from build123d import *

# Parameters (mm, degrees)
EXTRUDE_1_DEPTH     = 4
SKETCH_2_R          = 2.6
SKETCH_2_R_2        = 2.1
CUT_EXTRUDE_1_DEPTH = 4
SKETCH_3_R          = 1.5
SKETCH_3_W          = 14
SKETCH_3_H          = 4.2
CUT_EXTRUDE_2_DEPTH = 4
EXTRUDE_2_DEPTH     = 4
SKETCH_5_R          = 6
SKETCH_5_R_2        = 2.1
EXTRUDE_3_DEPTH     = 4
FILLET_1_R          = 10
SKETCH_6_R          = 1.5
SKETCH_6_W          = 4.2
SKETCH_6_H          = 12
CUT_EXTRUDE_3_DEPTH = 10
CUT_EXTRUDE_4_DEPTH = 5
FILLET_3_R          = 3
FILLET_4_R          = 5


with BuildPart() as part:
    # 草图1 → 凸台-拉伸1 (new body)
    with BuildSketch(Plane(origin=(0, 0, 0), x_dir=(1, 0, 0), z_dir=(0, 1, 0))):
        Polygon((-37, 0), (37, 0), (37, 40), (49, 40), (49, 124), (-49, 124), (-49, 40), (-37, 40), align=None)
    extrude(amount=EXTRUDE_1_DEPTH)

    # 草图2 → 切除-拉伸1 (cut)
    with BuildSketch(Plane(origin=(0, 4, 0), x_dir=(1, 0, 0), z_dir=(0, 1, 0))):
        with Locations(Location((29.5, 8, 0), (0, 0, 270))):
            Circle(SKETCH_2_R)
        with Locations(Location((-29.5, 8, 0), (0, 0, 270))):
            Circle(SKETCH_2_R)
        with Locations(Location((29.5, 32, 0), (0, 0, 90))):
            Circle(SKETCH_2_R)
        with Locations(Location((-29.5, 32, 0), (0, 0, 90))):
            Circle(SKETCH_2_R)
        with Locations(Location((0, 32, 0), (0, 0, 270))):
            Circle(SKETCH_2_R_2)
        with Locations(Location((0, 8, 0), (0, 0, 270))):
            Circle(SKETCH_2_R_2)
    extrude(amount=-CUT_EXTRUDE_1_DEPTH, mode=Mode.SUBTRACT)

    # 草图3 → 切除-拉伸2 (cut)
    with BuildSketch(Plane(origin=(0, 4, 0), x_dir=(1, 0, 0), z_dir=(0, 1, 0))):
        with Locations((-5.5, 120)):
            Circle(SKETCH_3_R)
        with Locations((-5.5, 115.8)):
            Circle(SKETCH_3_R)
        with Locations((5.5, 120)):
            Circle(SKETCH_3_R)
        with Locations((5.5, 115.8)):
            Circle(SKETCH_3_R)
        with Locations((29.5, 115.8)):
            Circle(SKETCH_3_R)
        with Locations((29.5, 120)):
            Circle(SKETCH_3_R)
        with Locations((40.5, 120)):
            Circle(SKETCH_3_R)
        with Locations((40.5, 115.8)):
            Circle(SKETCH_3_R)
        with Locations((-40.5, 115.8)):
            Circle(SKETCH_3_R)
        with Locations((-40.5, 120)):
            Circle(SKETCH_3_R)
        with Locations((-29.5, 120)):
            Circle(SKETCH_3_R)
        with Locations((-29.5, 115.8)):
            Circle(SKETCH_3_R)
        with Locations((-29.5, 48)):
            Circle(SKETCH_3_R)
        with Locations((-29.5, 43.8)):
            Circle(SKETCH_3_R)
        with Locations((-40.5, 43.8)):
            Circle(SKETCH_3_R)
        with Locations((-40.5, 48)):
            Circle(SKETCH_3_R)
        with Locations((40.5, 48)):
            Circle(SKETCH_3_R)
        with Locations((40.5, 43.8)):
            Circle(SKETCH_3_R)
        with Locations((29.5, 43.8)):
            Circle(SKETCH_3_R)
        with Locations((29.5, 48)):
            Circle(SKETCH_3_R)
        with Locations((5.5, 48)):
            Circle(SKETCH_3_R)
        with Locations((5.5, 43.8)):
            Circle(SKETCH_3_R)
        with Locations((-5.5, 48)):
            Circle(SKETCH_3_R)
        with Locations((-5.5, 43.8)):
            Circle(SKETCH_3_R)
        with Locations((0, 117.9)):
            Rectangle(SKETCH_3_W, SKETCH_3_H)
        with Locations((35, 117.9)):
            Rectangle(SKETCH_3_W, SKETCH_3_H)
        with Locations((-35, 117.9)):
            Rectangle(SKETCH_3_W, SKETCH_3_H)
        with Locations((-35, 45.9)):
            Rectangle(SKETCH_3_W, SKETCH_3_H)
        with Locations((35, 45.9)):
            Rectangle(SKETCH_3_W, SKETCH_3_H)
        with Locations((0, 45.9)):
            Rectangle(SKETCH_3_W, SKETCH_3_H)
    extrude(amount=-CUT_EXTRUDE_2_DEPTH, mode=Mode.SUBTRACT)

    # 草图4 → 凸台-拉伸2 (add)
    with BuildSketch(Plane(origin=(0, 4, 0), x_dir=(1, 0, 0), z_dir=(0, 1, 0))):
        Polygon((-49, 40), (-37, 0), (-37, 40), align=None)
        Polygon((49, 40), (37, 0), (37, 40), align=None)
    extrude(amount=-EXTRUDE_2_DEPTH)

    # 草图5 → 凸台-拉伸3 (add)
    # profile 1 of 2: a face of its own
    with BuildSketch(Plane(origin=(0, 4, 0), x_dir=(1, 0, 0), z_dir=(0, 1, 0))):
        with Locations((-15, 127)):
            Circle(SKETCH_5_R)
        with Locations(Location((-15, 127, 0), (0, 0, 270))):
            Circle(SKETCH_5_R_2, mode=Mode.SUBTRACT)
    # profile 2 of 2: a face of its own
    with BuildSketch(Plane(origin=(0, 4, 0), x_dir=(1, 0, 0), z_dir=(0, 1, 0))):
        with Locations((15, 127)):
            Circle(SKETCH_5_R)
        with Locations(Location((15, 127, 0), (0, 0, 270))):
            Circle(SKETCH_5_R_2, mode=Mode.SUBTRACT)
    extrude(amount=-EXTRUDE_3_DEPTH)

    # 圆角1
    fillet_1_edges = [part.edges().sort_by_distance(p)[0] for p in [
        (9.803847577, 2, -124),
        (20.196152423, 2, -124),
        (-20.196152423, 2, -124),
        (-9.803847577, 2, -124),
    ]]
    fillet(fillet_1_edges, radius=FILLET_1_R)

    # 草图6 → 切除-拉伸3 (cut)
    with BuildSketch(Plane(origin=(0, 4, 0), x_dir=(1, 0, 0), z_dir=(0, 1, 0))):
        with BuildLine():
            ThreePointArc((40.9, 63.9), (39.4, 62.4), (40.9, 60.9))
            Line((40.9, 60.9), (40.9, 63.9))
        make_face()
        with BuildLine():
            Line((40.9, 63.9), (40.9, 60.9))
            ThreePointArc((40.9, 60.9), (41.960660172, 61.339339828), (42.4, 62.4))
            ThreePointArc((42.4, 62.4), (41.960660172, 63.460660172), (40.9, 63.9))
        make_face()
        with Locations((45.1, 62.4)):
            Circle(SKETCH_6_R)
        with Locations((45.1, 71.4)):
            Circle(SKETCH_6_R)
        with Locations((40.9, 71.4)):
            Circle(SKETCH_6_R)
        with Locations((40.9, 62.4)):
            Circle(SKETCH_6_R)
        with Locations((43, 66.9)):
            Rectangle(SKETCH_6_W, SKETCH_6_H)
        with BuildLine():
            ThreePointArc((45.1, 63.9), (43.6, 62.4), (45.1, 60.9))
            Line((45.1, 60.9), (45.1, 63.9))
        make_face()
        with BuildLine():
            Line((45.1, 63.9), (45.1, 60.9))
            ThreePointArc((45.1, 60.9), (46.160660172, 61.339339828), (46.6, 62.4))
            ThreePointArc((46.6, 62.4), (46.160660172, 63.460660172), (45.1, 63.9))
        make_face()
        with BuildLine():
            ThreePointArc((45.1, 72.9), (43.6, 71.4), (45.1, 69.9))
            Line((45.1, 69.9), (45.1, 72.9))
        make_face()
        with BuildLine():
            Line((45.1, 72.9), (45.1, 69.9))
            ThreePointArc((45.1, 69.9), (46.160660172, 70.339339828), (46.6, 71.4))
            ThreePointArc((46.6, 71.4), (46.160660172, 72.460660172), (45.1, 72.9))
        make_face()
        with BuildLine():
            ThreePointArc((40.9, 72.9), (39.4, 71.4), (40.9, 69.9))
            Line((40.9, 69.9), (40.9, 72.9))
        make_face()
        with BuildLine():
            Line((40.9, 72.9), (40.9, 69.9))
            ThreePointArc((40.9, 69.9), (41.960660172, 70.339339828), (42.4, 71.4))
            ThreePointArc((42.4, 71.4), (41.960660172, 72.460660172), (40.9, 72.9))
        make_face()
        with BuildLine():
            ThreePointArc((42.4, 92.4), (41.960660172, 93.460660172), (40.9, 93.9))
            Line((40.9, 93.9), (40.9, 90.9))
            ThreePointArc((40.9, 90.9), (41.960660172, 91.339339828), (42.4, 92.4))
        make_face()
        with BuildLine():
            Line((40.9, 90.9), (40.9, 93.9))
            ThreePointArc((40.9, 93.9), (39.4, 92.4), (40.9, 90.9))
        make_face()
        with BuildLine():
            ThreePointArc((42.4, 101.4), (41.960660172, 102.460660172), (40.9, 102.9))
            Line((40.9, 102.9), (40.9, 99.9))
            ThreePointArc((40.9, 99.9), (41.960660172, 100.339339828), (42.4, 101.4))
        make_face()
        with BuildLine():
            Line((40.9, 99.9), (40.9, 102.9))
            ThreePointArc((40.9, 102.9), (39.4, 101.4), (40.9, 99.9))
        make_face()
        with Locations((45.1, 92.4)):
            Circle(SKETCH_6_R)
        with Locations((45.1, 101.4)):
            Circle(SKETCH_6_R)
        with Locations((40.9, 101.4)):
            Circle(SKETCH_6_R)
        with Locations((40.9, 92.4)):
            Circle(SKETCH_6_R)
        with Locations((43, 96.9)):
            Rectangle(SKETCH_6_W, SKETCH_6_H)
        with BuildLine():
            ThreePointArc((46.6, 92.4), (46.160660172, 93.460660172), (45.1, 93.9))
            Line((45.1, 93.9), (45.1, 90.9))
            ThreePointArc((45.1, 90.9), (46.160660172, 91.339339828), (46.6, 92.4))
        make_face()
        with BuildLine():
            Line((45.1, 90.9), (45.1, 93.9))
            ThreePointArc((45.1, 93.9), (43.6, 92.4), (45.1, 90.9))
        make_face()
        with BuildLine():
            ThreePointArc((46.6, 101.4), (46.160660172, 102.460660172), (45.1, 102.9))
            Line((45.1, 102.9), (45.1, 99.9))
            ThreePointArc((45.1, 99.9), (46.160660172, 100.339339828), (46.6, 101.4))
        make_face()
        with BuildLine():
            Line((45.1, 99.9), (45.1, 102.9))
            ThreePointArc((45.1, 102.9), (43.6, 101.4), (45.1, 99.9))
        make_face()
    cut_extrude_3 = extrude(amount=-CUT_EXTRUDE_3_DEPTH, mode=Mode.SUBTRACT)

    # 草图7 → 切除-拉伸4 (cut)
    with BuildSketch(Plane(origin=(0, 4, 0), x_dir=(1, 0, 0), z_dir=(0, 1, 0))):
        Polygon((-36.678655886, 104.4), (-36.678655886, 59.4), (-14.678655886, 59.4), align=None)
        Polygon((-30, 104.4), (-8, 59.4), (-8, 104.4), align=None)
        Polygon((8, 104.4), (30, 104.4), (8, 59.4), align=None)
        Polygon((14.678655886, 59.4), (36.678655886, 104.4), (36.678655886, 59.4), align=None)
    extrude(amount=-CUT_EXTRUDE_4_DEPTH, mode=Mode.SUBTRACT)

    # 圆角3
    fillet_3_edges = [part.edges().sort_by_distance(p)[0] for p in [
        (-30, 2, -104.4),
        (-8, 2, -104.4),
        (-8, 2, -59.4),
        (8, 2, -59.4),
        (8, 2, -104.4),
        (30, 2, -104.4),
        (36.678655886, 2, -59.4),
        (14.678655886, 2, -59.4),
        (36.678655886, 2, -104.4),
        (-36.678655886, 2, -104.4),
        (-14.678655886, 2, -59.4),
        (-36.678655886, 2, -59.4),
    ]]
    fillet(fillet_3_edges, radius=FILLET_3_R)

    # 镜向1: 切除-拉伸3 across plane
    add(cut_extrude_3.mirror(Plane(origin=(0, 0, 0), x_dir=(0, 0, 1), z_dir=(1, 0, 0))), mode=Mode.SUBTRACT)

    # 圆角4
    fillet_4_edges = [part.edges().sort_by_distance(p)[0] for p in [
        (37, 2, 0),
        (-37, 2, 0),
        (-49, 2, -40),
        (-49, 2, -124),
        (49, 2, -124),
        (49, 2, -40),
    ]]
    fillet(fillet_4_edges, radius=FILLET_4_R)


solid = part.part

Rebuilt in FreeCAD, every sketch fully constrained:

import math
import FreeCAD as App
import Part
import Sketcher


def edges_at(feature, points):
    """Names of the edges that pass closest to the given points."""
    edges = feature.Shape.Edges
    near = lambda p: min(range(len(edges)), key=lambda i: edges[i].distToShape(Part.Vertex(*p))[0])
    return sorted({f"Edge{near(p) + 1}" for p in points})

doc = App.newDocument("Part")
params = doc.addObject("Spreadsheet::Sheet", "Params")
for row, (alias, value) in enumerate([
    ("sketch1_width", "74 mm"),
    ("sketch1_width2", "12 mm"),
    ("sketch1_height", "40 mm"),
    ("sketch1_height2", "84 mm"),
    ("pad1_length", "4 mm"),
    ("sketch2_diameter", "5.2 mm"),
    ("sketch2_diameter2", "4.2 mm"),
    ("pocket1_length", "4 mm"),
    ("sketch3_radius", "1.5 mm"),
    ("sketch3_width", "8 mm"),
    ("sketch3_height", "4.2 mm"),
    ("pocket2_length", "4 mm"),
    ("sketch4_width", "12 mm"),
    ("sketch4_height", "40 mm"),
    ("pad2_length", "4 mm"),
    ("sketch5_diameter", "12 mm"),
    ("sketch5_diameter2", "4.2 mm"),
    ("pad3_length", "4 mm"),
    ("fillet_radius", "10 mm"),
    ("sketch6_radius", "1.5 mm"),
    ("sketch6_height", "6 mm"),
    ("sketch6_width", "4.2 mm"),
    ("pocket3_length", "10 mm"),
    ("sketch7_width", "22 mm"),
    ("sketch7_height", "45 mm"),
    ("pocket4_length", "5 mm"),
    ("fillet2_radius", "3 mm"),
    ("fillet3_radius", "5 mm"),
], start=1):
    params.set(f"A{row}", alias)
    params.set(f"B{row}", "=" + value)
    params.setAlias(f"B{row}", alias)

body = doc.addObject("PartDesign::Body", "Body")

# Sketch on XZ plane
sketch1 = doc.addObject("Sketcher::SketchObject", "Sketch")
body.addObject(sketch1)
sketch1.AttachmentSupport = (doc.XZ_Plane, [""])
sketch1.MapMode = "FlatFace"
sketch1.addGeometry([
    Part.LineSegment(App.Vector(-37, 0, 0), App.Vector(37, 0, 0)),  # 0
    Part.LineSegment(App.Vector(37, 0, 0), App.Vector(37, -40, 0)),  # 1
    Part.LineSegment(App.Vector(37, -40, 0), App.Vector(49, -40, 0)),  # 2
    Part.LineSegment(App.Vector(49, -40, 0), App.Vector(49, -124, 0)),  # 3
    Part.LineSegment(App.Vector(49, -124, 0), App.Vector(-49, -124, 0)),  # 4
    Part.LineSegment(App.Vector(-49, -124, 0), App.Vector(-49, -40, 0)),  # 5
    Part.LineSegment(App.Vector(-49, -40, 0), App.Vector(-37, -40, 0)),  # 6
    Part.LineSegment(App.Vector(-37, -40, 0), App.Vector(-37, 0, 0)),  # 7
], False)
sketch1.addConstraint([
    Sketcher.Constraint("Coincident", 0, 2, 1, 1),
    Sketcher.Constraint("Coincident", 1, 2, 2, 1),
    Sketcher.Constraint("Coincident", 2, 2, 3, 1),
    Sketcher.Constraint("Coincident", 3, 2, 4, 1),
    Sketcher.Constraint("Coincident", 4, 2, 5, 1),
    Sketcher.Constraint("Coincident", 5, 2, 6, 1),
    Sketcher.Constraint("Coincident", 6, 2, 7, 1),
    Sketcher.Constraint("Coincident", 7, 2, 0, 1),
    Sketcher.Constraint("Horizontal", 0),
    Sketcher.Constraint("Vertical", 1),
    Sketcher.Constraint("Horizontal", 2),
    Sketcher.Constraint("Vertical", 3),
    Sketcher.Constraint("Horizontal", 4),
    Sketcher.Constraint("Vertical", 5),
    Sketcher.Constraint("Horizontal", 6),
    Sketcher.Constraint("Vertical", 7),
    Sketcher.Constraint("Symmetric", 0, 2, 7, 2, -1, 1),
    Sketcher.Constraint("Symmetric", 2, 2, 5, 2, -2),
    Sketcher.Constraint("DistanceX", 0, 1, 0, 2, 74.0),
    Sketcher.Constraint("DistanceX", 2, 1, 2, 2, 12.0),
    Sketcher.Constraint("DistanceY", 1, 2, 1, 1, 40.0),
    Sketcher.Constraint("DistanceY", 3, 2, 3, 1, 84.0),
])
sketch1.setExpression("Constraints[18]", "Params.sketch1_width")
sketch1.setExpression("Constraints[19]", "Params.sketch1_width2")
sketch1.setExpression("Constraints[20]", "Params.sketch1_height")
sketch1.setExpression("Constraints[21]", "Params.sketch1_height2")
pad1 = doc.addObject("PartDesign::Pad", "Pad")
body.addObject(pad1)
pad1.Profile = sketch1
pad1.setExpression("Length", "Params.pad1_length")
pad1.Reversed = True

# Sketch on XZ plane
sketch2 = doc.addObject("Sketcher::SketchObject", "Sketch001")
body.addObject(sketch2)
sketch2.AttachmentSupport = (doc.XZ_Plane, [""])
sketch2.MapMode = "FlatFace"
sketch2.AttachmentOffset = App.Placement(App.Vector(0, 0, -4), App.Rotation())
sketch2.addGeometry([
    Part.Circle(App.Vector(29.5, -8, 0), App.Vector(0, 0, 1), 2.6),  # 0
    Part.Circle(App.Vector(-29.5, -8, 0), App.Vector(0, 0, 1), 2.6),  # 1
    Part.Circle(App.Vector(29.5, -32, 0), App.Vector(0, 0, 1), 2.6),  # 2
    Part.Circle(App.Vector(-29.5, -32, 0), App.Vector(0, 0, 1), 2.6),  # 3
    Part.Circle(App.Vector(0, -32, 0), App.Vector(0, 0, 1), 2.1),  # 4
    Part.Circle(App.Vector(0, -8, 0), App.Vector(0, 0, 1), 2.1),  # 5
], False)
sketch2.addConstraint([
    Sketcher.Constraint("Equal", 0, 1),
    Sketcher.Constraint("Equal", 1, 2),
    Sketcher.Constraint("Equal", 2, 3),
    Sketcher.Constraint("Equal", 4, 5),
    Sketcher.Constraint("Symmetric", 0, 3, 1, 3, -2),
    Sketcher.Constraint("Symmetric", 2, 3, 3, 3, -2),
    Sketcher.Constraint("PointOnObject", 4, 3, -2),
    Sketcher.Constraint("PointOnObject", 5, 3, -2),
    Sketcher.Constraint("Horizontal", 3, 3, 4, 3),
    Sketcher.Constraint("Horizontal", 1, 3, 5, 3),
    Sketcher.Constraint("Vertical", 0, 3, 2, 3),
    Sketcher.Constraint("Diameter", 0, 5.2),
    Sketcher.Constraint("Diameter", 4, 4.2),
    Sketcher.Constraint("DistanceY", 0, 3, -1, 1, 8.0),
    Sketcher.Constraint("DistanceY", 2, 3, -1, 1, 32.0),
    Sketcher.Constraint("DistanceX", 1, 3, 0, 3, 59.0),
])
sketch2.setExpression("Constraints[11]", "Params.sketch2_diameter")
sketch2.setExpression("Constraints[12]", "Params.sketch2_diameter2")
pocket1 = doc.addObject("PartDesign::Pocket", "Pocket")
body.addObject(pocket1)
pocket1.Profile = sketch2
pocket1.setExpression("Length", "Params.pocket1_length")
pocket1.Reversed = True

# Sketch on XZ plane
sketch3 = doc.addObject("Sketcher::SketchObject", "Sketch002")
body.addObject(sketch3)
sketch3.AttachmentSupport = (doc.XZ_Plane, [""])
sketch3.MapMode = "FlatFace"
sketch3.AttachmentOffset = App.Placement(App.Vector(0, 0, -4), App.Rotation())
sketch3.addGeometry([
    Part.ArcOfCircle(Part.Circle(App.Vector(-5.5, -120, 0), App.Vector(0, 0, 1), 1.5), math.radians(180), math.radians(360)),  # 0
    Part.LineSegment(App.Vector(-7, -120, 0), App.Vector(-7, -115.8, 0)),  # 1
    Part.ArcOfCircle(Part.Circle(App.Vector(-5.5, -115.8, 0), App.Vector(0, 0, 1), 1.5), math.radians(0), math.radians(180)),  # 2
    Part.LineSegment(App.Vector(-4, -115.8, 0), App.Vector(4, -115.8, 0)),  # 3
    Part.ArcOfCircle(Part.Circle(App.Vector(5.5, -115.8, 0), App.Vector(0, 0, 1), 1.5), math.radians(0), math.radians(180)),  # 4
    Part.LineSegment(App.Vector(7, -115.8, 0), App.Vector(7, -120, 0)),  # 5
    Part.ArcOfCircle(Part.Circle(App.Vector(5.5, -120, 0), App.Vector(0, 0, 1), 1.5), math.radians(180), math.radians(360)),  # 6
    Part.LineSegment(App.Vector(4, -120, 0), App.Vector(-4, -120, 0)),  # 7
    Part.ArcOfCircle(Part.Circle(App.Vector(29.5, -115.8, 0), App.Vector(0, 0, 1), 1.5), math.radians(0), math.radians(180)),  # 8
    Part.LineSegment(App.Vector(31, -115.8, 0), App.Vector(39, -115.8, 0)),  # 9
    Part.ArcOfCircle(Part.Circle(App.Vector(40.5, -115.8, 0), App.Vector(0, 0, 1), 1.5), math.radians(0), math.radians(180)),  # 10
    Part.LineSegment(App.Vector(42, -115.8, 0), App.Vector(42, -120, 0)),  # 11
    Part.ArcOfCircle(Part.Circle(App.Vector(40.5, -120, 0), App.Vector(0, 0, 1), 1.5), math.radians(180), math.radians(360)),  # 12
    Part.LineSegment(App.Vector(39, -120, 0), App.Vector(31, -120, 0)),  # 13
    Part.ArcOfCircle(Part.Circle(App.Vector(29.5, -120, 0), App.Vector(0, 0, 1), 1.5), math.radians(180), math.radians(360)),  # 14
    Part.LineSegment(App.Vector(28, -120, 0), App.Vector(28, -115.8, 0)),  # 15
    Part.ArcOfCircle(Part.Circle(App.Vector(-40.5, -115.8, 0), App.Vector(0, 0, 1), 1.5), math.radians(0), math.radians(180)),  # 16
    Part.LineSegment(App.Vector(-39, -115.8, 0), App.Vector(-31, -115.8, 0)),  # 17
    Part.ArcOfCircle(Part.Circle(App.Vector(-29.5, -115.8, 0), App.Vector(0, 0, 1), 1.5), math.radians(0), math.radians(180)),  # 18
    Part.LineSegment(App.Vector(-28, -115.8, 0), App.Vector(-28, -120, 0)),  # 19
    Part.ArcOfCircle(Part.Circle(App.Vector(-29.5, -120, 0), App.Vector(0, 0, 1), 1.5), math.radians(180), math.radians(360)),  # 20
    Part.LineSegment(App.Vector(-31, -120, 0), App.Vector(-39, -120, 0)),  # 21
    Part.ArcOfCircle(Part.Circle(App.Vector(-40.5, -120, 0), App.Vector(0, 0, 1), 1.5), math.radians(180), math.radians(360)),  # 22
    Part.LineSegment(App.Vector(-42, -120, 0), App.Vector(-42, -115.8, 0)),  # 23
    Part.ArcOfCircle(Part.Circle(App.Vector(-29.5, -48, 0), App.Vector(0, 0, 1), 1.5), math.radians(180), math.radians(360)),  # 24
    Part.LineSegment(App.Vector(-31, -48, 0), App.Vector(-39, -48, 0)),  # 25
    Part.ArcOfCircle(Part.Circle(App.Vector(-40.5, -48, 0), App.Vector(0, 0, 1), 1.5), math.radians(180), math.radians(360)),  # 26
    Part.LineSegment(App.Vector(-42, -48, 0), App.Vector(-42, -43.8, 0)),  # 27
    Part.ArcOfCircle(Part.Circle(App.Vector(-40.5, -43.8, 0), App.Vector(0, 0, 1), 1.5), math.radians(0), math.radians(180)),  # 28
    Part.LineSegment(App.Vector(-39, -43.8, 0), App.Vector(-31, -43.8, 0)),  # 29
    Part.ArcOfCircle(Part.Circle(App.Vector(-29.5, -43.8, 0), App.Vector(0, 0, 1), 1.5), math.radians(0), math.radians(180)),  # 30
    Part.LineSegment(App.Vector(-28, -43.8, 0), App.Vector(-28, -48, 0)),  # 31
    Part.ArcOfCircle(Part.Circle(App.Vector(40.5, -48, 0), App.Vector(0, 0, 1), 1.5), math.radians(180), math.radians(360)),  # 32
    Part.LineSegment(App.Vector(39, -48, 0), App.Vector(31, -48, 0)),  # 33
    Part.ArcOfCircle(Part.Circle(App.Vector(29.5, -48, 0), App.Vector(0, 0, 1), 1.5), math.radians(180), math.radians(360)),  # 34
    Part.LineSegment(App.Vector(28, -48, 0), App.Vector(28, -43.8, 0)),  # 35
    Part.ArcOfCircle(Part.Circle(App.Vector(29.5, -43.8, 0), App.Vector(0, 0, 1), 1.5), math.radians(0), math.radians(180)),  # 36
    Part.LineSegment(App.Vector(31, -43.8, 0), App.Vector(39, -43.8, 0)),  # 37
    Part.ArcOfCircle(Part.Circle(App.Vector(40.5, -43.8, 0), App.Vector(0, 0, 1), 1.5), math.radians(0), math.radians(180)),  # 38
    Part.LineSegment(App.Vector(42, -43.8, 0), App.Vector(42, -48, 0)),  # 39
    Part.ArcOfCircle(Part.Circle(App.Vector(5.5, -48, 0), App.Vector(0, 0, 1), 1.5), math.radians(180), math.radians(360)),  # 40
    Part.LineSegment(App.Vector(4, -48, 0), App.Vector(-4, -48, 0)),  # 41
    Part.ArcOfCircle(Part.Circle(App.Vector(-5.5, -48, 0), App.Vector(0, 0, 1), 1.5), math.radians(180), math.radians(360)),  # 42
    Part.LineSegment(App.Vector(-7, -48, 0), App.Vector(-7, -43.8, 0)),  # 43
    Part.ArcOfCircle(Part.Circle(App.Vector(-5.5, -43.8, 0), App.Vector(0, 0, 1), 1.5), math.radians(0), math.radians(180)),  # 44
    Part.LineSegment(App.Vector(-4, -43.8, 0), App.Vector(4, -43.8, 0)),  # 45
    Part.ArcOfCircle(Part.Circle(App.Vector(5.5, -43.8, 0), App.Vector(0, 0, 1), 1.5), math.radians(0), math.radians(180)),  # 46
    Part.LineSegment(App.Vector(7, -43.8, 0), App.Vector(7, -48, 0)),  # 47
], False)
sketch3.addConstraint([
    Sketcher.Constraint("Tangent", 0, 1, 1, 1),
    Sketcher.Constraint("Tangent", 1, 2, 2, 2),
    Sketcher.Constraint("Coincident", 2, 1, 3, 1),
    Sketcher.Constraint("Coincident", 3, 2, 4, 2),
    Sketcher.Constraint("Tangent", 4, 1, 5, 1),
    Sketcher.Constraint("Tangent", 5, 2, 6, 2),
    Sketcher.Constraint("Coincident", 6, 1, 7, 1),
    Sketcher.Constraint("Coincident", 7, 2, 0, 2),
    Sketcher.Constraint("Coincident", 8, 1, 9, 1),
    Sketcher.Constraint("Coincident", 9, 2, 10, 2),
    Sketcher.Constraint("Tangent", 10, 1, 11, 1),
    Sketcher.Constraint("Tangent", 11, 2, 12, 2),
    Sketcher.Constraint("Coincident", 12, 1, 13, 1),
    Sketcher.Constraint("Coincident", 13, 2, 14, 2),
    Sketcher.Constraint("Tangent", 14, 1, 15, 1),
    Sketcher.Constraint("Tangent", 15, 2, 8, 2),
    Sketcher.Constraint("Coincident", 16, 1, 17, 1),
    Sketcher.Constraint("Coincident", 17, 2, 18, 2),
    Sketcher.Constraint("Tangent", 18, 1, 19, 1),
    Sketcher.Constraint("Tangent", 19, 2, 20, 2),
    Sketcher.Constraint("Coincident", 20, 1, 21, 1),
    Sketcher.Constraint("Coincident", 21, 2, 22, 2),
    Sketcher.Constraint("Tangent", 22, 1, 23, 1),
    Sketcher.Constraint("Tangent", 23, 2, 16, 2),
    Sketcher.Constraint("Coincident", 24, 1, 25, 1),
    Sketcher.Constraint("Coincident", 25, 2, 26, 2),
    Sketcher.Constraint("Tangent", 26, 1, 27, 1),
    Sketcher.Constraint("Tangent", 27, 2, 28, 2),
    Sketcher.Constraint("Coincident", 28, 1, 29, 1),
    Sketcher.Constraint("Coincident", 29, 2, 30, 2),
    Sketcher.Constraint("Tangent", 30, 1, 31, 1),
    Sketcher.Constraint("Tangent", 31, 2, 24, 2),
    Sketcher.Constraint("Coincident", 32, 1, 33, 1),
    Sketcher.Constraint("Coincident", 33, 2, 34, 2),
    Sketcher.Constraint("Tangent", 34, 1, 35, 1),
    Sketcher.Constraint("Tangent", 35, 2, 36, 2),
    Sketcher.Constraint("Coincident", 36, 1, 37, 1),
    Sketcher.Constraint("Coincident", 37, 2, 38, 2),
    Sketcher.Constraint("Tangent", 38, 1, 39, 1),
    Sketcher.Constraint("Tangent", 39, 2, 32, 2),
    Sketcher.Constraint("Coincident", 40, 1, 41, 1),
    Sketcher.Constraint("Coincident", 41, 2, 42, 2),
    Sketcher.Constraint("Tangent", 42, 1, 43, 1),
    Sketcher.Constraint("Tangent", 43, 2, 44, 2),
    Sketcher.Constraint("Coincident", 44, 1, 45, 1),
    Sketcher.Constraint("Coincident", 45, 2, 46, 2),
    Sketcher.Constraint("Tangent", 46, 1, 47, 1),
    Sketcher.Constraint("Tangent", 47, 2, 40, 2),
    Sketcher.Constraint("Vertical", 1),
    Sketcher.Constraint("Horizontal", 3),
    Sketcher.Constraint("Vertical", 5),
    Sketcher.Constraint("Horizontal", 7),
    Sketcher.Constraint("Horizontal", 9),
    Sketcher.Constraint("Vertical", 11),
    Sketcher.Constraint("Horizontal", 13),
    Sketcher.Constraint("Vertical", 15),
    Sketcher.Constraint("Horizontal", 17),
    Sketcher.Constraint("Vertical", 19),
    Sketcher.Constraint("Horizontal", 21),
    Sketcher.Constraint("Vertical", 23),
    Sketcher.Constraint("Horizontal", 25),
    Sketcher.Constraint("Vertical", 27),
    Sketcher.Constraint("Horizontal", 29),
    Sketcher.Constraint("Vertical", 31),
    Sketcher.Constraint("Horizontal", 33),
    Sketcher.Constraint("Vertical", 35),
    Sketcher.Constraint("Horizontal", 37),
    Sketcher.Constraint("Vertical", 39),
    Sketcher.Constraint("Horizontal", 41),
    Sketcher.Constraint("Vertical", 43),
    Sketcher.Constraint("Horizontal", 45),
    Sketcher.Constraint("Vertical", 47),
    Sketcher.Constraint("Equal", 0, 2),
    Sketcher.Constraint("Equal", 2, 4),
    Sketcher.Constraint("Equal", 4, 6),
    Sketcher.Constraint("Equal", 6, 8),
    Sketcher.Constraint("Equal", 8, 10),
    Sketcher.Constraint("Equal", 10, 12),
    Sketcher.Constraint("Equal", 12, 14),
    Sketcher.Constraint("Equal", 14, 16),
    Sketcher.Constraint("Equal", 16, 18),
    Sketcher.Constraint("Equal", 18, 20),
    Sketcher.Constraint("Equal", 20, 22),
    Sketcher.Constraint("Equal", 22, 24),
    Sketcher.Constraint("Equal", 24, 26),
    Sketcher.Constraint("Equal", 26, 28),
    Sketcher.Constraint("Equal", 28, 30),
    Sketcher.Constraint("Equal", 30, 32),
    Sketcher.Constraint("Equal", 32, 34),
    Sketcher.Constraint("Equal", 34, 36),
    Sketcher.Constraint("Equal", 36, 38),
    Sketcher.Constraint("Equal", 38, 40),
    Sketcher.Constraint("Equal", 40, 42),
    Sketcher.Constraint("Equal", 42, 44),
    Sketcher.Constraint("Equal", 44, 46),
    Sketcher.Constraint("Symmetric", 2, 3, 4, 3, -2),
    Sketcher.Constraint("Symmetric", 10, 3, 16, 3, -2),
    Sketcher.Constraint("Symmetric", 8, 3, 18, 3, -2),
    Sketcher.Constraint("Symmetric", 26, 3, 32, 3, -2),
    Sketcher.Constraint("Symmetric", 24, 3, 34, 3, -2),
    Sketcher.Constraint("Symmetric", 40, 3, 42, 3, -2),
    Sketcher.Constraint("Horizontal", 0, 3, 6, 3),
    Sketcher.Constraint("Horizontal", 4, 3, 8, 3),
    Sketcher.Constraint("Horizontal", 8, 3, 10, 3),
    Sketcher.Constraint("Horizontal", 6, 3, 12, 3),
    Sketcher.Constraint("Horizontal", 12, 3, 14, 3),
    Sketcher.Constraint("Horizontal", 14, 3, 20, 3),
    Sketcher.Constraint("Horizontal", 20, 3, 22, 3),
    Sketcher.Constraint("Horizontal", 24, 3, 26, 3),
    Sketcher.Constraint("Horizontal", 28, 3, 30, 3),
    Sketcher.Constraint("Horizontal", 30, 3, 36, 3),
    Sketcher.Constraint("Horizontal", 36, 3, 38, 3),
    Sketcher.Constraint("Horizontal", 34, 3, 40, 3),
    Sketcher.Constraint("Horizontal", 38, 3, 44, 3),
    Sketcher.Constraint("Horizontal", 44, 3, 46, 3),
    Sketcher.Constraint("Horizontal", 1, 2, 2, 1),
    Sketcher.Constraint("Horizontal", 5, 2, 6, 1),
    Sketcher.Constraint("Horizontal", 4, 1, 8, 1),
    Sketcher.Constraint("Horizontal", 11, 2, 12, 1),
    Sketcher.Constraint("Horizontal", 15, 2, 16, 1),
    Sketcher.Constraint("Horizontal", 19, 2, 20, 1),
    Sketcher.Constraint("Horizontal", 42, 3, 24, 1),
    Sketcher.Constraint("Horizontal", 27, 2, 28, 1),
    Sketcher.Constraint("Horizontal", 31, 2, 32, 1),
    Sketcher.Constraint("Horizontal", 35, 2, 36, 1),
    Sketcher.Constraint("Horizontal", 39, 2, 40, 1),
    Sketcher.Constraint("Horizontal", 43, 2, 44, 1),
    Sketcher.Constraint("Vertical", 20, 3, 24, 3),
    Sketcher.Constraint("Vertical", 22, 3, 26, 3),
    Sketcher.Constraint("Vertical", 6, 3, 40, 3),
    Sketcher.Constraint("Equal", 7, 9),
    Sketcher.Constraint("Equal", 23, 27),
    Sketcher.Constraint("Radius", 0, 1.5),
    Sketcher.Constraint("DistanceX", 3, 1, 3, 2, 8.0),
    Sketcher.Constraint("DistanceY", 1, 1, 1, 2, 4.2),
    Sketcher.Constraint("DistanceY", 0, 3, -1, 1, 120.0),
    Sketcher.Constraint("DistanceY", 24, 3, -1, 1, 48.0),
    Sketcher.Constraint("DistanceX", -1, 1, 8, 1, 31.0),
])
sketch3.setExpression("Constraints[132]", "Params.sketch3_radius")
sketch3.setExpression("Constraints[133]", "Params.sketch3_width")
sketch3.setExpression("Constraints[134]", "Params.sketch3_height")
pocket2 = doc.addObject("PartDesign::Pocket", "Pocket001")
body.addObject(pocket2)
pocket2.Profile = sketch3
pocket2.setExpression("Length", "Params.pocket2_length")
pocket2.Reversed = True

# Sketch on XZ plane
sketch4 = doc.addObject("Sketcher::SketchObject", "Sketch003")
body.addObject(sketch4)
sketch4.AttachmentSupport = (doc.XZ_Plane, [""])
sketch4.MapMode = "FlatFace"
sketch4.AttachmentOffset = App.Placement(App.Vector(0, 0, -4), App.Rotation())
sketch4.addGeometry([
    Part.LineSegment(App.Vector(-49, -40, 0), App.Vector(-37, 0, 0)),  # 0
    Part.LineSegment(App.Vector(-37, 0, 0), App.Vector(-37, -40, 0)),  # 1
    Part.LineSegment(App.Vector(-37, -40, 0), App.Vector(-49, -40, 0)),  # 2
    Part.LineSegment(App.Vector(37, 0, 0), App.Vector(49, -40, 0)),  # 3
    Part.LineSegment(App.Vector(49, -40, 0), App.Vector(37, -40, 0)),  # 4
    Part.LineSegment(App.Vector(37, -40, 0), App.Vector(37, 0, 0)),  # 5
], False)
sketch4.addConstraint([
    Sketcher.Constraint("Coincident", 0, 2, 1, 1),
    Sketcher.Constraint("Coincident", 1, 2, 2, 1),
    Sketcher.Constraint("Coincident", 2, 2, 0, 1),
    Sketcher.Constraint("Coincident", 3, 2, 4, 1),
    Sketcher.Constraint("Coincident", 4, 2, 5, 1),
    Sketcher.Constraint("Coincident", 5, 2, 3, 1),
    Sketcher.Constraint("Vertical", 1),
    Sketcher.Constraint("Horizontal", 2),
    Sketcher.Constraint("Horizontal", 4),
    Sketcher.Constraint("Vertical", 5),
    Sketcher.Constraint("Symmetric", 0, 2, 5, 2, -1, 1),
    Sketcher.Constraint("Symmetric", 2, 2, 3, 2, -2),
    Sketcher.Constraint("PointOnObject", 0, 2, -1),
    Sketcher.Constraint("DistanceX", 2, 2, 2, 1, 12.0),
    Sketcher.Constraint("DistanceY", 1, 2, 1, 1, 40.0),
    Sketcher.Constraint("DistanceX", 0, 2, -1, 1, 37.0),
])
sketch4.setExpression("Constraints[13]", "Params.sketch4_width")
sketch4.setExpression("Constraints[14]", "Params.sketch4_height")
pad2 = doc.addObject("PartDesign::Pad", "Pad001")
body.addObject(pad2)
pad2.Profile = sketch4
pad2.setExpression("Length", "Params.pad2_length")

# Sketch on XZ plane
sketch5 = doc.addObject("Sketcher::SketchObject", "Sketch004")
body.addObject(sketch5)
sketch5.AttachmentSupport = (doc.XZ_Plane, [""])
sketch5.MapMode = "FlatFace"
sketch5.AttachmentOffset = App.Placement(App.Vector(0, 0, -4), App.Rotation())
sketch5.addGeometry([
    Part.Circle(App.Vector(-15, -127, 0), App.Vector(0, 0, 1), 6),
    Part.Circle(App.Vector(-15, -127, 0), App.Vector(0, 0, 1), 2.1),
    Part.Circle(App.Vector(15, -127, 0), App.Vector(0, 0, 1), 6),
    Part.Circle(App.Vector(15, -127, 0), App.Vector(0, 0, 1), 2.1),
], False)
sketch5.addConstraint([
    Sketcher.Constraint("Coincident", 1, 3, 0, 3),
    Sketcher.Constraint("Coincident", 3, 3, 2, 3),
    Sketcher.Constraint("Equal", 0, 2),
    Sketcher.Constraint("Equal", 1, 3),
    Sketcher.Constraint("Symmetric", 0, 3, 2, 3, -2),
    Sketcher.Constraint("Diameter", 0, 12.0),
    Sketcher.Constraint("Diameter", 1, 4.2),
    Sketcher.Constraint("DistanceX", 0, 3, -1, 1, 15.0),
    Sketcher.Constraint("DistanceY", 0, 3, -1, 1, 127.0),
])
sketch5.setExpression("Constraints[5]", "Params.sketch5_diameter")
sketch5.setExpression("Constraints[6]", "Params.sketch5_diameter2")
pad3 = doc.addObject("PartDesign::Pad", "Pad002")
body.addObject(pad3)
pad3.Profile = sketch5
pad3.setExpression("Length", "Params.pad3_length")
doc.recompute()

fillet = doc.addObject("PartDesign::Fillet", "Fillet")
body.addObject(fillet)
fillet.Base = (pad3, edges_at(pad3, [
    (9.804, 2, -124),
    (20.196, 2, -124),
    (-20.196, 2, -124),
    (-9.804, 2, -124),
]))
fillet.setExpression("Radius", "Params.fillet_radius")

# Sketch on XZ plane
sketch6 = doc.addObject("Sketcher::SketchObject", "Sketch005")
body.addObject(sketch6)
sketch6.AttachmentSupport = (doc.XZ_Plane, [""])
sketch6.MapMode = "FlatFace"
sketch6.AttachmentOffset = App.Placement(App.Vector(0, 0, -4), App.Rotation())
sketch6.addGeometry([
    Part.LineSegment(App.Vector(40.9, -69.9, 0), App.Vector(40.9, -63.9, 0)),  # 0
    Part.ArcOfCircle(Part.Circle(App.Vector(40.9, -62.4, 0), App.Vector(0, 0, 1), 1.5), math.radians(90), math.radians(270)),  # 1
    Part.LineSegment(App.Vector(40.9, -60.9, 0), App.Vector(45.1, -60.9, 0)),  # 2
    Part.ArcOfCircle(Part.Circle(App.Vector(45.1, -62.4, 0), App.Vector(0, 0, 1), 1.5), math.radians(-90), math.radians(90)),  # 3
    Part.LineSegment(App.Vector(45.1, -63.9, 0), App.Vector(45.1, -69.9, 0)),  # 4
    Part.ArcOfCircle(Part.Circle(App.Vector(45.1, -71.4, 0), App.Vector(0, 0, 1), 1.5), math.radians(-90), math.radians(90)),  # 5
    Part.LineSegment(App.Vector(45.1, -72.9, 0), App.Vector(40.9, -72.9, 0)),  # 6
    Part.ArcOfCircle(Part.Circle(App.Vector(40.9, -71.4, 0), App.Vector(0, 0, 1), 1.5), math.radians(90), math.radians(270)),  # 7
    Part.LineSegment(App.Vector(40.9, -99.9, 0), App.Vector(40.9, -93.9, 0)),  # 8
    Part.ArcOfCircle(Part.Circle(App.Vector(40.9, -92.4, 0), App.Vector(0, 0, 1), 1.5), math.radians(90), math.radians(270)),  # 9
    Part.LineSegment(App.Vector(40.9, -90.9, 0), App.Vector(45.1, -90.9, 0)),  # 10
    Part.ArcOfCircle(Part.Circle(App.Vector(45.1, -92.4, 0), App.Vector(0, 0, 1), 1.5), math.radians(-90), math.radians(90)),  # 11
    Part.LineSegment(App.Vector(45.1, -93.9, 0), App.Vector(45.1, -99.9, 0)),  # 12
    Part.ArcOfCircle(Part.Circle(App.Vector(45.1, -101.4, 0), App.Vector(0, 0, 1), 1.5), math.radians(-90), math.radians(90)),  # 13
    Part.LineSegment(App.Vector(45.1, -102.9, 0), App.Vector(40.9, -102.9, 0)),  # 14
    Part.ArcOfCircle(Part.Circle(App.Vector(40.9, -101.4, 0), App.Vector(0, 0, 1), 1.5), math.radians(90), math.radians(270)),  # 15
], False)
sketch6.addConstraint([
    Sketcher.Constraint("Coincident", 0, 2, 1, 2),
    Sketcher.Constraint("Tangent", 1, 1, 2, 1),
    Sketcher.Constraint("Tangent", 2, 2, 3, 2),
    Sketcher.Constraint("Coincident", 3, 1, 4, 1),
    Sketcher.Constraint("Coincident", 4, 2, 5, 2),
    Sketcher.Constraint("Tangent", 5, 1, 6, 1),
    Sketcher.Constraint("Tangent", 6, 2, 7, 2),
    Sketcher.Constraint("Coincident", 7, 1, 0, 1),
    Sketcher.Constraint("Coincident", 8, 2, 9, 2),
    Sketcher.Constraint("Tangent", 9, 1, 10, 1),
    Sketcher.Constraint("Tangent", 10, 2, 11, 2),
    Sketcher.Constraint("Coincident", 11, 1, 12, 1),
    Sketcher.Constraint("Coincident", 12, 2, 13, 2),
    Sketcher.Constraint("Tangent", 13, 1, 14, 1),
    Sketcher.Constraint("Tangent", 14, 2, 15, 2),
    Sketcher.Constraint("Coincident", 15, 1, 8, 1),
    Sketcher.Constraint("Vertical", 0),
    Sketcher.Constraint("Horizontal", 2),
    Sketcher.Constraint("Vertical", 4),
    Sketcher.Constraint("Horizontal", 6),
    Sketcher.Constraint("Vertical", 8),
    Sketcher.Constraint("Horizontal", 10),
    Sketcher.Constraint("Vertical", 12),
    Sketcher.Constraint("Horizontal", 14),
    Sketcher.Constraint("Equal", 1, 3),
    Sketcher.Constraint("Equal", 3, 5),
    Sketcher.Constraint("Equal", 5, 7),
    Sketcher.Constraint("Equal", 7, 9),
    Sketcher.Constraint("Equal", 9, 11),
    Sketcher.Constraint("Equal", 11, 13),
    Sketcher.Constraint("Equal", 13, 15),
    Sketcher.Constraint("Vertical", 3, 3, 5, 3),
    Sketcher.Constraint("Vertical", 1, 3, 7, 3),
    Sketcher.Constraint("Vertical", 7, 3, 9, 3),
    Sketcher.Constraint("Vertical", 5, 3, 11, 3),
    Sketcher.Constraint("Vertical", 11, 3, 13, 3),
    Sketcher.Constraint("Vertical", 9, 3, 15, 3),
    Sketcher.Constraint("Vertical", 15, 3, 0, 2),
    Sketcher.Constraint("Vertical", 2, 2, 3, 1),
    Sketcher.Constraint("Vertical", 7, 1, 8, 2),
    Sketcher.Constraint("Vertical", 10, 2, 11, 1),
    Sketcher.Constraint("Equal", 4, 8),
    Sketcher.Constraint("Radius", 1, 1.5),
    Sketcher.Constraint("DistanceY", 0, 1, 0, 2, 6.0),
    Sketcher.Constraint("DistanceX", 2, 1, 2, 2, 4.2),
    Sketcher.Constraint("DistanceY", 9, 3, 7, 3, 21.0),
    Sketcher.Constraint("DistanceX", -1, 1, 1, 3, 40.9),
    Sketcher.Constraint("DistanceY", 1, 3, -1, 1, 62.4),
])
sketch6.setExpression("Constraints[42]", "Params.sketch6_radius")
sketch6.setExpression("Constraints[43]", "Params.sketch6_height")
sketch6.setExpression("Constraints[44]", "Params.sketch6_width")
pocket3 = doc.addObject("PartDesign::Pocket", "Pocket002")
body.addObject(pocket3)
pocket3.Profile = sketch6
pocket3.setExpression("Length", "Params.pocket3_length")
pocket3.Reversed = True

# Sketch on XZ plane
sketch7 = doc.addObject("Sketcher::SketchObject", "Sketch006")
body.addObject(sketch7)
sketch7.AttachmentSupport = (doc.XZ_Plane, [""])
sketch7.MapMode = "FlatFace"
sketch7.AttachmentOffset = App.Placement(App.Vector(0, 0, -4), App.Rotation())
sketch7.addGeometry([
    Part.LineSegment(App.Vector(-37, -104, 0), App.Vector(-37, -59, 0)),  # 0
    Part.LineSegment(App.Vector(-37, -59, 0), App.Vector(-15, -59, 0)),  # 1
    Part.LineSegment(App.Vector(-15, -59, 0), App.Vector(-37, -104, 0)),  # 2
    Part.LineSegment(App.Vector(-30, -104, 0), App.Vector(-8, -59, 0)),  # 3
    Part.LineSegment(App.Vector(-8, -59, 0), App.Vector(-8, -104, 0)),  # 4
    Part.LineSegment(App.Vector(-8, -104, 0), App.Vector(-30, -104, 0)),  # 5
    Part.LineSegment(App.Vector(30, -104, 0), App.Vector(8, -104, 0)),  # 6
    Part.LineSegment(App.Vector(8, -104, 0), App.Vector(8, -59, 0)),  # 7
    Part.LineSegment(App.Vector(8, -59, 0), App.Vector(30, -104, 0)),  # 8
    Part.LineSegment(App.Vector(37, -104, 0), App.Vector(15, -59, 0)),  # 9
    Part.LineSegment(App.Vector(15, -59, 0), App.Vector(37, -59, 0)),  # 10
    Part.LineSegment(App.Vector(37, -59, 0), App.Vector(37, -104, 0)),  # 11
], False)
sketch7.addConstraint([
    Sketcher.Constraint("Coincident", 0, 2, 1, 1),
    Sketcher.Constraint("Coincident", 1, 2, 2, 1),
    Sketcher.Constraint("Coincident", 2, 2, 0, 1),
    Sketcher.Constraint("Coincident", 3, 2, 4, 1),
    Sketcher.Constraint("Coincident", 4, 2, 5, 1),
    Sketcher.Constraint("Coincident", 5, 2, 3, 1),
    Sketcher.Constraint("Coincident", 6, 2, 7, 1),
    Sketcher.Constraint("Coincident", 7, 2, 8, 1),
    Sketcher.Constraint("Coincident", 8, 2, 6, 1),
    Sketcher.Constraint("Coincident", 9, 2, 10, 1),
    Sketcher.Constraint("Coincident", 10, 2, 11, 1),
    Sketcher.Constraint("Coincident", 11, 2, 9, 1),
    Sketcher.Constraint("Vertical", 0),
    Sketcher.Constraint("Horizontal", 1),
    Sketcher.Constraint("Vertical", 4),
    Sketcher.Constraint("Horizontal", 5),
    Sketcher.Constraint("Horizontal", 6),
    Sketcher.Constraint("Vertical", 7),
    Sketcher.Constraint("Horizontal", 10),
    Sketcher.Constraint("Vertical", 11),
    Sketcher.Constraint("Symmetric", 4, 2, 6, 2, -2),
    Sketcher.Constraint("Symmetric", 1, 2, 9, 2, -2),
    Sketcher.Constraint("Symmetric", 2, 2, 11, 2, -2),
    Sketcher.Constraint("Parallel", 2, 3),
    Sketcher.Constraint("Parallel", 8, 9),
    Sketcher.Constraint("Horizontal", 1, 2, 3, 2),
    Sketcher.Constraint("Horizontal", 2, 2, 4, 2),
    Sketcher.Constraint("Horizontal", 3, 2, 7, 2),
    Sketcher.Constraint("DistanceX", 1, 1, 1, 2, 22.0),
    Sketcher.Constraint("DistanceY", 0, 1, 0, 2, 45.0),
    Sketcher.Constraint("DistanceX", 3, 2, -1, 1, 8.0),
    Sketcher.Constraint("DistanceY", 0, 2, -1, 1, 59.4),
    Sketcher.Constraint("DistanceX", 1, 2, 9, 2, 29.357312),
])
sketch7.setExpression("Constraints[28]", "Params.sketch7_width")
sketch7.setExpression("Constraints[29]", "Params.sketch7_height")
pocket4 = doc.addObject("PartDesign::Pocket", "Pocket003")
body.addObject(pocket4)
pocket4.Profile = sketch7
pocket4.setExpression("Length", "Params.pocket4_length")
pocket4.Reversed = True
doc.recompute()

fillet2 = doc.addObject("PartDesign::Fillet", "Fillet001")
body.addObject(fillet2)
fillet2.Base = (pocket4, edges_at(pocket4, [
    (-30, 2, -104.4),
    (-8, 2, -104.4),
    (-8, 2, -59.4),
    (8, 2, -59.4),
    (8, 2, -104.4),
    (30, 2, -104.4),
    (36.679, 2, -59.4),
    (14.679, 2, -59.4),
    (36.679, 2, -104.4),
    (-36.679, 2, -104.4),
    (-14.679, 2, -59.4),
    (-36.679, 2, -59.4),
]))
fillet2.setExpression("Radius", "Params.fillet2_radius")
doc.recompute()

mirrored = doc.addObject("PartDesign::Mirrored", "Mirrored")
body.addObject(mirrored)
mirrored.Originals = [pocket3]
mirrored.MirrorPlane = (doc.YZ_Plane, [""])
body.Tip = mirrored
doc.recompute()

fillet3 = doc.addObject("PartDesign::Fillet", "Fillet002")
body.addObject(fillet3)
fillet3.Base = (mirrored, edges_at(mirrored, [
    (37, 2, 0),
    (-37, 2, 0),
    (-49, 2, -40),
    (-49, 2, -124),
    (49, 2, -124),
    (49, 2, -40),
]))
fillet3.setExpression("Radius", "Params.fillet3_radius")

doc.recompute()
